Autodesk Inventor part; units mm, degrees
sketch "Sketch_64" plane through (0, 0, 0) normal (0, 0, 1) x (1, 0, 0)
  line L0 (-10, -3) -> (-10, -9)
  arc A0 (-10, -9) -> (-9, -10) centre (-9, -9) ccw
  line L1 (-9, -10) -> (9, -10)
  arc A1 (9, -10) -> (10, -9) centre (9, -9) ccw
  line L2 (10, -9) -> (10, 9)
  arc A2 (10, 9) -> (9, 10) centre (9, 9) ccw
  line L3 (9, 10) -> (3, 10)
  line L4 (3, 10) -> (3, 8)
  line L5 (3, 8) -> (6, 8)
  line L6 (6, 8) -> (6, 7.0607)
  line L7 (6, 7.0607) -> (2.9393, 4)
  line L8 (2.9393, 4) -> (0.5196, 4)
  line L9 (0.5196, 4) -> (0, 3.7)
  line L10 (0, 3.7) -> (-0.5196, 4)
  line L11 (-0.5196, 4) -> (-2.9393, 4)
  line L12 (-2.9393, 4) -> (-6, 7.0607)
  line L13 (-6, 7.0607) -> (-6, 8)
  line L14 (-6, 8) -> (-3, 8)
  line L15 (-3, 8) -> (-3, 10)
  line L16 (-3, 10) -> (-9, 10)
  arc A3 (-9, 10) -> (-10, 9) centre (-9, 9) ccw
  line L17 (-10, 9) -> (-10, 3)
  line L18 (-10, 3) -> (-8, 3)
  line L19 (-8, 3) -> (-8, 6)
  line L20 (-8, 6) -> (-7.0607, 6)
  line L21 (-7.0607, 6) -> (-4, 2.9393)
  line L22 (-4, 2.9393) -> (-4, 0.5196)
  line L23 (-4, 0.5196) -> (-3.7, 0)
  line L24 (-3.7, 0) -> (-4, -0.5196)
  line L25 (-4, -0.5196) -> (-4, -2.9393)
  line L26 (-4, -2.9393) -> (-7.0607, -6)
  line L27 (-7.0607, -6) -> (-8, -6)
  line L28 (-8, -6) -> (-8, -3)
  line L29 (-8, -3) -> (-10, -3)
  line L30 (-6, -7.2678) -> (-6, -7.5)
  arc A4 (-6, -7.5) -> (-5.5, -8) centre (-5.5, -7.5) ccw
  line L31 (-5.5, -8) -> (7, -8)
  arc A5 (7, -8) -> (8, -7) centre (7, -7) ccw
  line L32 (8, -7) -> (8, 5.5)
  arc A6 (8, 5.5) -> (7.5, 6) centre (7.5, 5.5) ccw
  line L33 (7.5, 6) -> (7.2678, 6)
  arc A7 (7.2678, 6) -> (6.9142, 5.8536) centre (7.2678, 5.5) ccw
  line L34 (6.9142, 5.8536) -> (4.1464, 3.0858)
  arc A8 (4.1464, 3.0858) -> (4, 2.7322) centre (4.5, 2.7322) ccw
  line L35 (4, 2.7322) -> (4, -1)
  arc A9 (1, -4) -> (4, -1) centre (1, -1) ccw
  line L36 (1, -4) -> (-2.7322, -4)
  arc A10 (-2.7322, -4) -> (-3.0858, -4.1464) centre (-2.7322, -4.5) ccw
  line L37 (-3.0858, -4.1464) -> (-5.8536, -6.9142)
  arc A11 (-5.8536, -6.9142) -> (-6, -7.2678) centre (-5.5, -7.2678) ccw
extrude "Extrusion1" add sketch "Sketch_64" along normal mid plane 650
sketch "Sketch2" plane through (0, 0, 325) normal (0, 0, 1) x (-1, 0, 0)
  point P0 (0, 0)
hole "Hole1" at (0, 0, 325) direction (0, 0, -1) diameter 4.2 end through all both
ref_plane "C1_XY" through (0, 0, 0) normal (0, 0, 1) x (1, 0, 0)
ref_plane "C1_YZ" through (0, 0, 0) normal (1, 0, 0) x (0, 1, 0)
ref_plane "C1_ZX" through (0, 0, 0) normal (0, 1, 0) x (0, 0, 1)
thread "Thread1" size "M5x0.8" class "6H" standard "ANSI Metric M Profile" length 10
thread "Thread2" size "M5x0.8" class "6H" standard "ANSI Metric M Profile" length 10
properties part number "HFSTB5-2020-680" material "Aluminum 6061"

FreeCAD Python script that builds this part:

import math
import FreeCAD as App
import Part
import Sketcher
Q = App.Units.Quantity

doc = App.newDocument("Part")
body = doc.addObject("PartDesign::Body", "Body")

# Sketch on XY plane
sketch1 = body.newObject("Sketcher::SketchObject", "Sketch")
sketch1.AttachmentSupport = (doc.getObject("XY_Plane"), [""])
sketch1.MapMode = "FlatFace"
sketch1.addGeometry([
    Part.LineSegment(App.Vector(-8, -3, 0), App.Vector(-10, -3, 0)),  # 0
    Part.LineSegment(App.Vector(-10, -3, 0), App.Vector(-10, -9, 0)),  # 1
    Part.ArcOfCircle(Part.Circle(App.Vector(-9, -9, 0), App.Vector(0, 0, 1), 1), math.radians(180), math.radians(270)),  # 2
    Part.LineSegment(App.Vector(-9, -10, 0), App.Vector(9, -10, 0)),  # 3
    Part.ArcOfCircle(Part.Circle(App.Vector(9, -9, 0), App.Vector(0, 0, 1), 1), math.radians(-90), math.radians(0)),  # 4
    Part.LineSegment(App.Vector(10, -9, 0), App.Vector(10, 9, 0)),  # 5
    Part.ArcOfCircle(Part.Circle(App.Vector(9, 9, 0), App.Vector(0, 0, 1), 1), math.radians(0), math.radians(90)),  # 6
    Part.LineSegment(App.Vector(9, 10, 0), App.Vector(3, 10, 0)),  # 7
    Part.LineSegment(App.Vector(3, 10, 0), App.Vector(3, 8, 0)),  # 8
    Part.LineSegment(App.Vector(3, 8, 0), App.Vector(6, 8, 0)),  # 9
    Part.LineSegment(App.Vector(6, 8, 0), App.Vector(6, 7.0607, 0)),  # 10
    Part.LineSegment(App.Vector(6, 7.0607, 0), App.Vector(2.9393, 4, 0)),  # 11
    Part.LineSegment(App.Vector(2.9393, 4, 0), App.Vector(0.5196, 4, 0)),  # 12
    Part.LineSegment(App.Vector(0.5196, 4, 0), App.Vector(0, 3.7, 0)),  # 13
    Part.LineSegment(App.Vector(0, 3.7, 0), App.Vector(-0.5196, 4, 0)),  # 14
    Part.LineSegment(App.Vector(-0.5196, 4, 0), App.Vector(-2.9393, 4, 0)),  # 15
    Part.LineSegment(App.Vector(-2.9393, 4, 0), App.Vector(-6, 7.0607, 0)),  # 16
    Part.LineSegment(App.Vector(-6, 7.0607, 0), App.Vector(-6, 8, 0)),  # 17
    Part.LineSegment(App.Vector(-6, 8, 0), App.Vector(-3, 8, 0)),  # 18
    Part.LineSegment(App.Vector(-3, 8, 0), App.Vector(-3, 10, 0)),  # 19
    Part.LineSegment(App.Vector(-3, 10, 0), App.Vector(-9, 10, 0)),  # 20
    Part.ArcOfCircle(Part.Circle(App.Vector(-9, 9, 0), App.Vector(0, 0, 1), 1), math.radians(90), math.radians(180)),  # 21
    Part.LineSegment(App.Vector(-10, 9, 0), App.Vector(-10, 3, 0)),  # 22
    Part.LineSegment(App.Vector(-10, 3, 0), App.Vector(-8, 3, 0)),  # 23
    Part.LineSegment(App.Vector(-8, 3, 0), App.Vector(-8, 6, 0)),  # 24
    Part.LineSegment(App.Vector(-8, 6, 0), App.Vector(-7.0607, 6, 0)),  # 25
    Part.LineSegment(App.Vector(-7.0607, 6, 0), App.Vector(-4, 2.9393, 0)),  # 26
    Part.LineSegment(App.Vector(-4, 2.9393, 0), App.Vector(-4, 0.5196, 0)),  # 27
    Part.LineSegment(App.Vector(-4, 0.5196, 0), App.Vector(-3.7, 0, 0)),  # 28
    Part.LineSegment(App.Vector(-3.7, 0, 0), App.Vector(-4, -0.5196, 0)),  # 29
    Part.LineSegment(App.Vector(-4, -0.5196, 0), App.Vector(-4, -2.9393, 0)),  # 30
    Part.LineSegment(App.Vector(-4, -2.9393, 0), App.Vector(-7.0607, -6, 0)),  # 31
    Part.LineSegment(App.Vector(-7.0607, -6, 0), App.Vector(-8, -6, 0)),  # 32
    Part.LineSegment(App.Vector(-8, -6, 0), App.Vector(-8, -3, 0)),  # 33
    Part.LineSegment(App.Vector(-6, -7.5, 0), App.Vector(-6, -7.2678, 0)),  # 34
    Part.ArcOfCircle(Part.Circle(App.Vector(-5.5, -7.2678, 0), App.Vector(0, 0, 1), 0.500066), math.radians(135), math.radians(180)),  # 35
    Part.LineSegment(App.Vector(-5.8536, -6.9142, 0), App.Vector(-3.0858, -4.1464, 0)),  # 36
    Part.ArcOfCircle(Part.Circle(App.Vector(-2.7322, -4.5, 0), App.Vector(0, 0, 1), 0.5), math.radians(90), math.radians(135)),  # 37
    Part.LineSegment(App.Vector(-2.7322, -4, 0), App.Vector(1, -4, 0)),  # 38
    Part.ArcOfCircle(Part.Circle(App.Vector(1, -1, 0), App.Vector(0, 0, 1), 3), math.radians(-90), math.radians(0)),  # 39
    Part.LineSegment(App.Vector(4, -1, 0), App.Vector(4, 2.7322, 0)),  # 40
    Part.ArcOfCircle(Part.Circle(App.Vector(4.5, 2.7322, 0), App.Vector(0, 0, 1), 0.500066), math.radians(135), math.radians(180)),  # 41
    Part.LineSegment(App.Vector(4.1464, 3.0858, 0), App.Vector(6.9142, 5.8536, 0)),  # 42
    Part.ArcOfCircle(Part.Circle(App.Vector(7.2678, 5.5, 0), App.Vector(0, 0, 1), 0.5), math.radians(90), math.radians(135)),  # 43
    Part.LineSegment(App.Vector(7.2678, 6, 0), App.Vector(7.5, 6, 0)),  # 44
    Part.ArcOfCircle(Part.Circle(App.Vector(7.5, 5.5, 0), App.Vector(0, 0, 1), 0.5), math.radians(0), math.radians(90)),  # 45
    Part.LineSegment(App.Vector(8, 5.5, 0), App.Vector(8, -7, 0)),  # 46
    Part.ArcOfCircle(Part.Circle(App.Vector(7, -7, 0), App.Vector(0, 0, 1), 1), math.radians(-90), math.radians(0)),  # 47
    Part.LineSegment(App.Vector(7, -8, 0), App.Vector(-5.5, -8, 0)),  # 48
    Part.ArcOfCircle(Part.Circle(App.Vector(-5.5, -7.5, 0), App.Vector(0, 0, 1), 0.5), math.radians(180), math.radians(270)),  # 49
], False)
sketch1.addConstraint([
    Sketcher.Constraint("Coincident", 0, 2, 1, 1),
    Sketcher.Constraint("Tangent", 1, 2, 2, 1),
    Sketcher.Constraint("Tangent", 2, 2, 3, 1),
    Sketcher.Constraint("Tangent", 3, 2, 4, 1),
    Sketcher.Constraint("Tangent", 4, 2, 5, 1),
    Sketcher.Constraint("Tangent", 5, 2, 6, 1),
    Sketcher.Constraint("Tangent", 6, 2, 7, 1),
    Sketcher.Constraint("Coincident", 7, 2, 8, 1),
    Sketcher.Constraint("Coincident", 8, 2, 9, 1),
    Sketcher.Constraint("Coincident", 9, 2, 10, 1),
    Sketcher.Constraint("Coincident", 10, 2, 11, 1),
    Sketcher.Constraint("Coincident", 11, 2, 12, 1),
    Sketcher.Constraint("Coincident", 12, 2, 13, 1),
    Sketcher.Constraint("Coincident", 13, 2, 14, 1),
    Sketcher.Constraint("Coincident", 14, 2, 15, 1),
    Sketcher.Constraint("Coincident", 15, 2, 16, 1),
    Sketcher.Constraint("Coincident", 16, 2, 17, 1),
    Sketcher.Constraint("Coincident", 17, 2, 18, 1),
    Sketcher.Constraint("Coincident", 18, 2, 19, 1),
    Sketcher.Constraint("Coincident", 19, 2, 20, 1),
    Sketcher.Constraint("Tangent", 20, 2, 21, 1),
    Sketcher.Constraint("Tangent", 21, 2, 22, 1),
    Sketcher.Constraint("Coincident", 22, 2, 23, 1),
    Sketcher.Constraint("Coincident", 23, 2, 24, 1),
    Sketcher.Constraint("Coincident", 24, 2, 25, 1),
    Sketcher.Constraint("Coincident", 25, 2, 26, 1),
    Sketcher.Constraint("Coincident", 26, 2, 27, 1),
    Sketcher.Constraint("Coincident", 27, 2, 28, 1),
    Sketcher.Constraint("Coincident", 28, 2, 29, 1),
    Sketcher.Constraint("Coincident", 29, 2, 30, 1),
    Sketcher.Constraint("Coincident", 30, 2, 31, 1),
    Sketcher.Constraint("Coincident", 31, 2, 32, 1),
    Sketcher.Constraint("Coincident", 32, 2, 33, 1),
    Sketcher.Constraint("Coincident", 33, 2, 0, 1),
    Sketcher.Constraint("Tangent", 34, 2, 35, 2),
    Sketcher.Constraint("Tangent", 35, 1, 36, 1),
    Sketcher.Constraint("Tangent", 36, 2, 37, 2),
    Sketcher.Constraint("Tangent", 37, 1, 38, 1),
    Sketcher.Constraint("Tangent", 38, 2, 39, 1),
    Sketcher.Constraint("Tangent", 39, 2, 40, 1),
    Sketcher.Constraint("Tangent", 40, 2, 41, 2),
    Sketcher.Constraint("Tangent", 41, 1, 42, 1),
    Sketcher.Constraint("Tangent", 42, 2, 43, 2),
    Sketcher.Constraint("Tangent", 43, 1, 44, 1),
    Sketcher.Constraint("Tangent", 44, 2, 45, 2),
    Sketcher.Constraint("Tangent", 45, 1, 46, 1),
    Sketcher.Constraint("Tangent", 46, 2, 47, 2),
    Sketcher.Constraint("Tangent", 47, 1, 48, 1),
    Sketcher.Constraint("Tangent", 48, 2, 49, 2),
    Sketcher.Constraint("Tangent", 49, 1, 34, 1),
    Sketcher.Constraint("Horizontal", 0),
    Sketcher.Constraint("Vertical", 1),
    Sketcher.Constraint("Horizontal", 3),
    Sketcher.Constraint("Vertical", 5),
    Sketcher.Constraint("Horizontal", 7),
    Sketcher.Constraint("Vertical", 8),
    Sketcher.Constraint("Horizontal", 9),
    Sketcher.Constraint("Vertical", 10),
    Sketcher.Constraint("Horizontal", 12),
    Sketcher.Constraint("Horizontal", 15),
    Sketcher.Constraint("Vertical", 17),
    Sketcher.Constraint("Horizontal", 18),
    Sketcher.Constraint("Vertical", 19),
    Sketcher.Constraint("Horizontal", 20),
    Sketcher.Constraint("Vertical", 22),
    Sketcher.Constraint("Horizontal", 23),
    Sketcher.Constraint("Vertical", 24),
    Sketcher.Constraint("Horizontal", 25),
    Sketcher.Constraint("Vertical", 27),
    Sketcher.Constraint("Vertical", 30),
    Sketcher.Constraint("Horizontal", 32),
    Sketcher.Constraint("Vertical", 33),
    Sketcher.Constraint("Vertical", 34),
    Sketcher.Constraint("Horizontal", 38),
    Sketcher.Constraint("Vertical", 40),
    Sketcher.Constraint("Horizontal", 44),
    Sketcher.Constraint("Vertical", 46),
    Sketcher.Constraint("Horizontal", 48),
    Sketcher.Constraint("Equal", 2, 4),
    Sketcher.Constraint("Equal", 4, 6),
    Sketcher.Constraint("Equal", 6, 21),
    Sketcher.Constraint("Equal", 35, 37),
    Sketcher.Constraint("Equal", 37, 41),
    Sketcher.Constraint("Equal", 41, 43),
    Sketcher.Constraint("Equal", 43, 45),
    Sketcher.Constraint("Equal", 21, 47),
    Sketcher.Constraint("Equal", 45, 49),
    Sketcher.Constraint("Symmetric", 2, 3, 6, 3, -1, 1),
    Sketcher.Constraint("Symmetric", 4, 3, 21, 3, -1, 1),
    Sketcher.Constraint("Symmetric", 12, 2, 14, 2, -2),
    Sketcher.Constraint("Symmetric", 10, 2, 16, 2, -2),
    Sketcher.Constraint("Symmetric", 8, 2, 18, 2, -2),
    Sketcher.Constraint("Symmetric", 27, 2, 29, 2, -1),
    Sketcher.Constraint("Symmetric", 25, 2, 31, 2, -1),
    Sketcher.Constraint("Symmetric", 23, 2, 33, 2, -1),
    Sketcher.Constraint("PointOnObject", 13, 2, -2),
    Sketcher.Constraint("PointOnObject", 28, 2, -1),
    Sketcher.Constraint("Perpendicular", 11, 16),
    Sketcher.Constraint("Parallel", 16, 26),
    Sketcher.Constraint("Perpendicular", 13, 28),
    Sketcher.Constraint("Perpendicular", 26, 31),
    Sketcher.Constraint("Parallel", 31, 36),
    Sketcher.Constraint("Parallel", 36, 42),
    Sketcher.Constraint("Horizontal", 25, 2, 43, 1),
    Sketcher.Constraint("Vertical", 17, 2, 34, 2),
    Sketcher.Constraint("Equal", 12, 15),
    Sketcher.Constraint("Equal", 20, 1),
    Sketcher.Constraint("Equal", 3, 5),
    Sketcher.Constraint("Equal", 23, 8),
    Sketcher.Constraint("Equal", 32, 10),
    Sketcher.Constraint("Equal", 18, 24),
    Sketcher.Constraint("Equal", 15, 27),
    Sketcher.Constraint("Equal", 44, 34),
    Sketcher.Constraint("Equal", 38, 40),
    Sketcher.Constraint("Equal", 16, 26),
    Sketcher.Constraint("Equal", 36, 42),
    Sketcher.Constraint("Radius", 2, Q("1 mm")),
    Sketcher.Constraint("Radius", 39, Q("3 mm")),
    Sketcher.Constraint("Radius", 35, Q("0.5 mm")),
    Sketcher.Constraint("DistanceX", 0, 2, 0, 1, Q("2 mm")),
    Sketcher.Constraint("DistanceX", 3, 1, 3, 2, Q("18 mm")),
    Sketcher.Constraint("DistanceX", 7, 2, 7, 1, Q("6 mm")),
    Sketcher.Constraint("DistanceX", 9, 1, 9, 2, Q("3 mm")),
    Sketcher.Constraint("Angle", 13, Q("-149.9993 deg")),
    Sketcher.Constraint("DistanceX", 48, 2, 48, 1, Q("12.5 mm")),
    Sketcher.Constraint("DistanceX", -1, 1, 39, 3, Q("1 mm")),
    Sketcher.Constraint("DistanceY", -1, 1, 11, 2, Q("4 mm")),
    Sketcher.Constraint("Distance", 13, Q("0.6 mm")),
    Sketcher.Constraint("DistanceX", 12, 2, 12, 1, Q("2.4197 mm")),
    Sketcher.Constraint("DistanceX", 38, 1, 38, 2, Q("3.7322 mm")),
])
pad1 = body.newObject("PartDesign::Pad", "Pad")
pad1.Profile = sketch1
pad1.Length = 650
pad1.Midplane = True

# Sketch on XY plane
sketch2 = body.newObject("Sketcher::SketchObject", "Sketch001")
sketch2.AttachmentSupport = (doc.getObject("XY_Plane"), [""])
sketch2.MapMode = "FlatFace"
sketch2.AttachmentOffset = App.Placement(App.Vector(0, 0, 325), App.Rotation())
sketch2.addGeometry(Part.Circle(App.Vector(0, 0, 0), App.Vector(0, 0, 1), 2.1), False)
sketch2.addConstraint([
    Sketcher.Constraint("Coincident", 0, 3, -1, 1),
    Sketcher.Constraint("Diameter", 0, Q("4.2 mm")),
])
doc.recompute()
hole = body.newObject("PartDesign::Hole", "Hole")
hole.Profile = sketch2
hole.ThreadType = "None"
hole.Diameter = 4.2
hole.DepthType = "ThroughAll"

doc.recompute()
